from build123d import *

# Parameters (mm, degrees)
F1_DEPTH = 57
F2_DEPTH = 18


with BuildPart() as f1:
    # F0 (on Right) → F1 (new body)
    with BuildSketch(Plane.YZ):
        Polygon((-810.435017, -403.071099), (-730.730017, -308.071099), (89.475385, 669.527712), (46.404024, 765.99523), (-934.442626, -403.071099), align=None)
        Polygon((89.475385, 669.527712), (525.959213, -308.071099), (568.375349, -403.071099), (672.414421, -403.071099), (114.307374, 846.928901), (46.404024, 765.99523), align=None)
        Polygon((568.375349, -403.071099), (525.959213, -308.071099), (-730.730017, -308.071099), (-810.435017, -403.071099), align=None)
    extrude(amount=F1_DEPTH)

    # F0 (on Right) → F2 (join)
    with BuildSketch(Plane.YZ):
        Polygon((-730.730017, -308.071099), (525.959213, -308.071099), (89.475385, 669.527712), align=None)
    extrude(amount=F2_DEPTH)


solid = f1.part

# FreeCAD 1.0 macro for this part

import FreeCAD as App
import Part
import Sketcher
from FreeCAD import Vector


def add_polygon(sketch, points):
    """Adds a closed chain of lines whose ends are joined by coincident constraints."""
    first, n = sketch.GeometryCount, len(points)
    for a, b in zip(points, points[1:] + points[:1]):
        sketch.addGeometry(Part.LineSegment(App.Vector(*a, 0), App.Vector(*b, 0)), False)
    for i in range(n):
        sketch.addConstraint(Sketcher.Constraint("Coincident", first + i, 2, first + (i + 1) % n, 1))

doc = App.newDocument("Part")
body = doc.addObject("PartDesign::Body", "Body")

sketch1 = doc.addObject("Sketcher::SketchObject", "Sketch")
body.addObject(sketch1)
sketch1.AttachmentSupport = (doc.YZ_Plane, [""])
sketch1.MapMode = "FlatFace"
add_polygon(sketch1, [(672, -403), (114, 847), (46, 766), (-934, -403)])
add_polygon(sketch1, [(-731, -308), (89, 670), (526, -308)])
sketch1.addConstraint([
    Sketcher.Constraint("Horizontal", 3),
    Sketcher.Constraint("Horizontal", 6),
    Sketcher.Constraint("Parallel", 1, 2),
    Sketcher.Constraint("Parallel", 2, 4),
    Sketcher.Constraint("Parallel", 0, 5),
    Sketcher.Constraint("DistanceY", 2, 2, 0, 2, 1250.0),
    Sketcher.Constraint("DistanceY", 3, 2, 5, 2, 95.0),
    Sketcher.Constraint("DistanceX", 2, 2, 0, 2, 1048.75),
    Sketcher.Constraint("DistanceX", 6, 2, 6, 1, 1256.68923),
    Sketcher.Constraint("DistanceY", -1, 1, 0, 2, 846.928901),
    Sketcher.Constraint("DistanceX", 6, 2, 4, 2, 820.205402),
    Sketcher.Constraint("Distance", 1, 105.646221),
    Sketcher.Constraint("DistanceX", -1, 1, 3, 2, 672.414421),
    Sketcher.Constraint("DistanceX", 1, 2, 4, 2, 43.071361),
])
pad1 = doc.addObject("PartDesign::Pad", "Pad")
body.addObject(pad1)
pad1.Profile = sketch1
pad1.Length = 57

sketch2 = doc.addObject("Sketcher::SketchObject", "Sketch001")
body.addObject(sketch2)
sketch2.AttachmentSupport = (doc.YZ_Plane, [""])
sketch2.MapMode = "FlatFace"
add_polygon(sketch2, [(-731, -308), (526, -308), (89, 670)])
sketch2.addConstraint([
    Sketcher.Constraint("Horizontal", 0),
    Sketcher.Constraint("DistanceX", 0, 1, 0, 2, 1256.68923),
    Sketcher.Constraint("DistanceY", 0, 2, -1, 1, 308.071099),
    Sketcher.Constraint("DistanceX", 2, 2, 1, 2, 820.205402),
    Sketcher.Constraint("Distance", 1, 1070.615509),
    Sketcher.Constraint("DistanceX", -1, 1, 0, 2, 525.959213),
])
pad2 = doc.addObject("PartDesign::Pad", "Pad001")
body.addObject(pad2)
pad2.Profile = sketch2
pad2.Length = 18

doc.recompute()
